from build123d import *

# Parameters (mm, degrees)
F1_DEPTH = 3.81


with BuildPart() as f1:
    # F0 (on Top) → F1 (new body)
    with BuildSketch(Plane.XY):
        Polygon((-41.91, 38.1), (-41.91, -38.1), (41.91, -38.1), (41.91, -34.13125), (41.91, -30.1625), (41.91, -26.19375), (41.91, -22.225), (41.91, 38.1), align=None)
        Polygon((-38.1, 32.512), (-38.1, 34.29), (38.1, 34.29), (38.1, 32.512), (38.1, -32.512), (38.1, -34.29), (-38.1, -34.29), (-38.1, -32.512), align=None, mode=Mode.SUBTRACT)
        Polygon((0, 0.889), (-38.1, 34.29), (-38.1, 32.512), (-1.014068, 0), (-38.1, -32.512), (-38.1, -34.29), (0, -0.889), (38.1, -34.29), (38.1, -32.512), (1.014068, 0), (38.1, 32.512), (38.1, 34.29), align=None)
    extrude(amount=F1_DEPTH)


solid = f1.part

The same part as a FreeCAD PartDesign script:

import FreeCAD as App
import Part
import Sketcher
from FreeCAD import Vector
Q = App.Units.Quantity


def add_polygon(sketch, points):
    """Adds a closed chain of lines whose ends are joined by coincident constraints."""
    first, n = sketch.GeometryCount, len(points)
    for a, b in zip(points, points[1:] + points[:1]):
        sketch.addGeometry(Part.LineSegment(App.Vector(*a, 0), App.Vector(*b, 0)), False)
    for i in range(n):
        sketch.addConstraint(Sketcher.Constraint("Coincident", first + i, 2, first + (i + 1) % n, 1))

doc = App.newDocument("Part")
body = doc.addObject("PartDesign::Body", "Body")

sketch1 = body.newObject("Sketcher::SketchObject", "Sketch")
sketch1.AttachmentSupport = (doc.getObject("XY_Plane"), [""])
sketch1.MapMode = "FlatFace"
add_polygon(sketch1, [(-41.91, 38.1), (-41.91, -38.1), (41.91, -38.1), (41.91, 38.1)])
add_polygon(sketch1, [(-38.1, -32.512), (-38.1, 32.512), (-1.014068, 0)])
add_polygon(sketch1, [(-38.1, 34.29), (38.1, 34.29), (0, 0.889)])
add_polygon(sketch1, [(38.1, 32.512), (38.1, -32.512), (1.014068, 0)])
add_polygon(sketch1, [(38.1, -34.29), (-38.1, -34.29), (0, -0.889)])
sketch1.addConstraint(Sketcher.Constraint("Vertical", 0))
sketch1.addConstraint(Sketcher.Constraint("Horizontal", 1))
sketch1.addConstraint(Sketcher.Constraint("Vertical", 2))
sketch1.addConstraint(Sketcher.Constraint("Horizontal", 3))
sketch1.addConstraint(Sketcher.Constraint("Vertical", 4))
sketch1.addConstraint(Sketcher.Constraint("Horizontal", 7))
sketch1.addConstraint(Sketcher.Constraint("Vertical", 10))
sketch1.addConstraint(Sketcher.Constraint("Horizontal", 13))
sketch1.addConstraint(Sketcher.Constraint("Symmetric", 0, 2, 2, 2, -1, 1))
sketch1.addConstraint(Sketcher.Constraint("Symmetric", 4, 2, 10, 2, -1, 1))
sketch1.addConstraint(Sketcher.Constraint("Symmetric", 5, 2, 11, 2, -1, 1))
sketch1.addConstraint(Sketcher.Constraint("Symmetric", 7, 2, 13, 2, -1, 1))
sketch1.addConstraint(Sketcher.Constraint("Symmetric", 8, 2, 14, 2, -1, 1))
sketch1.addConstraint(Sketcher.Constraint("PointOnObject", 5, 2, -1))
sketch1.addConstraint(Sketcher.Constraint("PointOnObject", 8, 2, -2))
sketch1.addConstraint(Sketcher.Constraint("Parallel", 6, 8))
sketch1.addConstraint(Sketcher.Constraint("Parallel", 5, 9))
sketch1.addConstraint(Sketcher.Constraint("Parallel", 8, 12))
sketch1.addConstraint(Sketcher.Constraint("Parallel", 11, 15))
sketch1.addConstraint(Sketcher.Constraint("Horizontal", 6, 2, 10, 2))
sketch1.addConstraint(Sketcher.Constraint("Vertical", 6, 2, 9, 2))
sketch1.addConstraint(Sketcher.Constraint("Equal", 13, 0))
sketch1.addConstraint(Sketcher.Constraint("DistanceX", 7, 1, 7, 2, Q("3 in")))
sketch1.addConstraint(Sketcher.Constraint("DistanceX", 1, 1, 1, 2, Q("3.3 in")))
sketch1.addConstraint(Sketcher.Constraint("DistanceY", 4, 1, 4, 2, Q("2.56 in")))
sketch1.addConstraint(Sketcher.Constraint("DistanceY", -1, 1, 7, 2, Q("1.35 in")))
sketch1.addConstraint(Sketcher.Constraint("DistanceY", 14, 2, 8, 2, Q("0.07 in")))
pad1 = body.newObject("PartDesign::Pad", "Pad")
pad1.Profile = sketch1
pad1.Length = Q("0.15 in")

doc.recompute()
